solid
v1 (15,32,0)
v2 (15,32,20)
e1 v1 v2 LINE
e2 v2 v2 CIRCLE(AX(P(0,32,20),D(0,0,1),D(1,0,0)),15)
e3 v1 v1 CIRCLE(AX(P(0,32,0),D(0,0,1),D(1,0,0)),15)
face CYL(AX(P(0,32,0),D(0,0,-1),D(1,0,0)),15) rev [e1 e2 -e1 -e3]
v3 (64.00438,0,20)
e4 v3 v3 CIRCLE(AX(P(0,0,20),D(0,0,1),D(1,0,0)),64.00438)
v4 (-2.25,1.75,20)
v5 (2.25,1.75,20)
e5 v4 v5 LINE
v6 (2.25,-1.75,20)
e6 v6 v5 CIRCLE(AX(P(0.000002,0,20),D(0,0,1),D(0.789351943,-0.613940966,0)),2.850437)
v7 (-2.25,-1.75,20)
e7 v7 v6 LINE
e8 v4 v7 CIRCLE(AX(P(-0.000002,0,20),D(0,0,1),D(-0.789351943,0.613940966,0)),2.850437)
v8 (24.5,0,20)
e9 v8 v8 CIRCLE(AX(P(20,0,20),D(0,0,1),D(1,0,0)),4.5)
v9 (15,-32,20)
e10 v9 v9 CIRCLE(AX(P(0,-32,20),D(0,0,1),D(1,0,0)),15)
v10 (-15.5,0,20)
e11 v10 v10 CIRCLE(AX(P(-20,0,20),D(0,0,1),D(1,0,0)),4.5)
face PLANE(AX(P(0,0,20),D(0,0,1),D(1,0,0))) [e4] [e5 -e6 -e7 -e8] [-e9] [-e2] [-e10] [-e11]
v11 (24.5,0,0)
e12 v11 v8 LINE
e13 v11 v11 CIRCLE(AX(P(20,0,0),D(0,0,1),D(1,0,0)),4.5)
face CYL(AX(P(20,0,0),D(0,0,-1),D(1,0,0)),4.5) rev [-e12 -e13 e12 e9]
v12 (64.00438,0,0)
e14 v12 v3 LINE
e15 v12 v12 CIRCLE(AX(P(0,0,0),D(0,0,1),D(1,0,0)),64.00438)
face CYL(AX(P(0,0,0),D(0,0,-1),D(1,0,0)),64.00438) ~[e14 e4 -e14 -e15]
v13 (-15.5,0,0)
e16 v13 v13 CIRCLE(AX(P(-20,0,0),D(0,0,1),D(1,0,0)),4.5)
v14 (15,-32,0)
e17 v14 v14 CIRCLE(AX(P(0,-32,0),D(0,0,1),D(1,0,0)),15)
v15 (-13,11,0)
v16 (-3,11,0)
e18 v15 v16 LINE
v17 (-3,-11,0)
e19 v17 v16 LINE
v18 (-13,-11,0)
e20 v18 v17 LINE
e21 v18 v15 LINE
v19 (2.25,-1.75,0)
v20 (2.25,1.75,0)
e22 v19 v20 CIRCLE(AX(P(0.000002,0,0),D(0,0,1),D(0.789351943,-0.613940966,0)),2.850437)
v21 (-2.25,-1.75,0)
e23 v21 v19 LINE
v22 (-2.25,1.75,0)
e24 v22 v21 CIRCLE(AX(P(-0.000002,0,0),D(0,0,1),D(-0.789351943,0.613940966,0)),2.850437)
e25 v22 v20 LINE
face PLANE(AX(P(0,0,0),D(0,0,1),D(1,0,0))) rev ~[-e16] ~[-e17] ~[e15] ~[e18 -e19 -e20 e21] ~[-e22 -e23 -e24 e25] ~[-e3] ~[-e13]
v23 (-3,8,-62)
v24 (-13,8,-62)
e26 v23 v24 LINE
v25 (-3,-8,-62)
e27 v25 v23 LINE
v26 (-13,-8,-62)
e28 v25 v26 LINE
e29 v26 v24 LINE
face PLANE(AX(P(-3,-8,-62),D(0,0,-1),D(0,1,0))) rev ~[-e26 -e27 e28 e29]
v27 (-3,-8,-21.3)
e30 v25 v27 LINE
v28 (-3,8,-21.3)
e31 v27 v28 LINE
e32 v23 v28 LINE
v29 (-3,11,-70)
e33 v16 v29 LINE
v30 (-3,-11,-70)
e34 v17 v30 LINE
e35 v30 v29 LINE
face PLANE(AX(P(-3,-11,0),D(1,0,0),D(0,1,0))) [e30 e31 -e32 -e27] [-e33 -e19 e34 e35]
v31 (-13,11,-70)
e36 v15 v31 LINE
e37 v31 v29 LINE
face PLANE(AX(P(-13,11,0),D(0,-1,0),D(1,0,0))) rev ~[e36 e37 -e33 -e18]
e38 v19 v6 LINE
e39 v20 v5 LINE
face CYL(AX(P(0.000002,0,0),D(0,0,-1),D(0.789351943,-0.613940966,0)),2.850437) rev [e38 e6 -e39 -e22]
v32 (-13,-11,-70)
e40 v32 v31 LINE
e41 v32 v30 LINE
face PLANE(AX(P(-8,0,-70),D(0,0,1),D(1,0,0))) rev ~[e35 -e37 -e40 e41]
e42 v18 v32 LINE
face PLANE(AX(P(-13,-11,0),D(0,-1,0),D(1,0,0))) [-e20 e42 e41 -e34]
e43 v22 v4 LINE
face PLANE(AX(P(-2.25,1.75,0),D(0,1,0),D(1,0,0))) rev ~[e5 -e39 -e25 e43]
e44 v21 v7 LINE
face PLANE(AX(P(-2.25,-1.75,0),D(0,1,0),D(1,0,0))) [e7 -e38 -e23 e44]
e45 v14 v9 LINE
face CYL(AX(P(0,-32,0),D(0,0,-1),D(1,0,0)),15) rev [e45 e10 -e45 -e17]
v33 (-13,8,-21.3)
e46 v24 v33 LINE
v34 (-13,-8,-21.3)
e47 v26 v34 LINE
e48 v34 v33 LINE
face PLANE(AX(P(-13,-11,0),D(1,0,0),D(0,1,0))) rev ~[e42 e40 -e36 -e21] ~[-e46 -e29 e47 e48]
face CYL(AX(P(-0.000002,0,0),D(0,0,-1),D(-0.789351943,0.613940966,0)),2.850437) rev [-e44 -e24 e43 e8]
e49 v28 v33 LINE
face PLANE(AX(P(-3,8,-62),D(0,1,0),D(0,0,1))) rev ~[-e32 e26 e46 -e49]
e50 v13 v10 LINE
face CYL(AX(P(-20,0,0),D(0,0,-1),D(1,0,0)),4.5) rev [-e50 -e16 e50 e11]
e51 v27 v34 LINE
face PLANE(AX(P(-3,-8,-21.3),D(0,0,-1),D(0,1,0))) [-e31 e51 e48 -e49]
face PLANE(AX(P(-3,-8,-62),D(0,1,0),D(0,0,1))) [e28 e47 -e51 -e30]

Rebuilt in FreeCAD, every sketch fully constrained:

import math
import FreeCAD as App
import Part
import Sketcher
Q = App.Units.Quantity


def add_polygon(sketch, points):
    """Adds a closed chain of lines whose ends are joined by coincident constraints."""
    first, n = sketch.GeometryCount, len(points)
    for a, b in zip(points, points[1:] + points[:1]):
        sketch.addGeometry(Part.LineSegment(App.Vector(*a, 0), App.Vector(*b, 0)), False)
    for i in range(n):
        sketch.addConstraint(Sketcher.Constraint("Coincident", first + i, 2, first + (i + 1) % n, 1))

doc = App.newDocument("Part")
body = doc.addObject("PartDesign::Body", "Body")

# Sketch on XY plane
sketch1 = body.newObject("Sketcher::SketchObject", "Sketch")
sketch1.AttachmentSupport = (doc.getObject("XY_Plane"), [""])
sketch1.MapMode = "FlatFace"
sketch1.addGeometry(Part.Circle(App.Vector(0, 0, 0), App.Vector(0, 0, 1), 64.00438), False)
sketch1.addConstraint(Sketcher.Constraint("Coincident", 0, 3, -1, 1))
sketch1.addConstraint(Sketcher.Constraint("Diameter", 0, Q("128.00876 mm")))
pad1 = body.newObject("PartDesign::Pad", "Pad")
pad1.Profile = sketch1
pad1.Length = 20

# Sketch on XY plane
sketch2 = body.newObject("Sketcher::SketchObject", "Sketch001")
sketch2.AttachmentSupport = (doc.getObject("XY_Plane"), [""])
sketch2.MapMode = "FlatFace"
sketch2.addGeometry(Part.Circle(App.Vector(20, 0, 0), App.Vector(0, 0, 1), 4.5), False)
sketch2.addConstraint(Sketcher.Constraint("PointOnObject", 0, 3, -1))
sketch2.addConstraint(Sketcher.Constraint("Diameter", 0, Q("9 mm")))
sketch2.addConstraint(Sketcher.Constraint("DistanceX", -1, 1, 0, 3, Q("20 mm")))
pocket1 = body.newObject("PartDesign::Pocket", "Pocket")
pocket1.Profile = sketch2
pocket1.Length = 20
pocket1.Reversed = True

# Sketch on XY plane
sketch3 = body.newObject("Sketcher::SketchObject", "Sketch002")
sketch3.AttachmentSupport = (doc.getObject("XY_Plane"), [""])
sketch3.MapMode = "FlatFace"
sketch3.addGeometry(Part.Circle(App.Vector(-20, 0, 0), App.Vector(0, 0, 1), 4.5), False)
sketch3.addConstraint(Sketcher.Constraint("PointOnObject", 0, 3, -1))
sketch3.addConstraint(Sketcher.Constraint("Diameter", 0, Q("9 mm")))
sketch3.addConstraint(Sketcher.Constraint("DistanceX", 0, 3, -1, 1, Q("20 mm")))
pocket2 = body.newObject("PartDesign::Pocket", "Pocket001")
pocket2.Profile = sketch3
pocket2.Length = 20
pocket2.Reversed = True

# Sketch on XY plane
sketch4 = body.newObject("Sketcher::SketchObject", "Sketch003")
sketch4.AttachmentSupport = (doc.getObject("XY_Plane"), [""])
sketch4.MapMode = "FlatFace"
add_polygon(sketch4, [(-13, 11), (-13, -11), (-3, -11), (-3, 11)])  # lines 0-3
sketch4.addConstraint(Sketcher.Constraint("Vertical", 0))
sketch4.addConstraint(Sketcher.Constraint("Horizontal", 1))
sketch4.addConstraint(Sketcher.Constraint("Vertical", 2))
sketch4.addConstraint(Sketcher.Constraint("Horizontal", 3))
sketch4.addConstraint(Sketcher.Constraint("DistanceX", 1, 1, 1, 2, Q("10 mm")))
sketch4.addConstraint(Sketcher.Constraint("DistanceY", 0, 2, 0, 1, Q("22 mm")))
sketch4.addConstraint(Sketcher.Constraint("DistanceX", 0, 2, -1, 1, Q("13 mm")))
sketch4.addConstraint(Sketcher.Constraint("DistanceY", 0, 2, -1, 1, Q("11 mm")))
pad2 = body.newObject("PartDesign::Pad", "Pad001")
pad2.Profile = sketch4
pad2.Length = 70
pad2.Reversed = True

# Sketch on YZ plane
sketch5 = body.newObject("Sketcher::SketchObject", "Sketch004")
sketch5.AttachmentSupport = (doc.getObject("YZ_Plane"), [""])
sketch5.MapMode = "FlatFace"
sketch5.AttachmentOffset = App.Placement(App.Vector(0, 0, -3), App.Rotation())
add_polygon(sketch5, [(-8, -21.3), (-8, -62), (8, -62), (8, -21.3)])  # lines 0-3
sketch5.addConstraint(Sketcher.Constraint("Vertical", 0))
sketch5.addConstraint(Sketcher.Constraint("Horizontal", 1))
sketch5.addConstraint(Sketcher.Constraint("Vertical", 2))
sketch5.addConstraint(Sketcher.Constraint("Horizontal", 3))
sketch5.addConstraint(Sketcher.Constraint("DistanceX", 1, 1, 1, 2, Q("16 mm")))
sketch5.addConstraint(Sketcher.Constraint("DistanceY", 0, 2, 0, 1, Q("40.7 mm")))
sketch5.addConstraint(Sketcher.Constraint("DistanceX", 0, 2, -1, 1, Q("8 mm")))
sketch5.addConstraint(Sketcher.Constraint("DistanceY", 0, 2, -1, 1, Q("62 mm")))
pocket3 = body.newObject("PartDesign::Pocket", "Pocket002")
pocket3.Profile = sketch5
pocket3.Length = 10

# Sketch on XY plane
sketch6 = body.newObject("Sketcher::SketchObject", "Sketch005")
sketch6.AttachmentSupport = (doc.getObject("XY_Plane"), [""])
sketch6.MapMode = "FlatFace"
sketch6.addGeometry(Part.LineSegment(App.Vector(2.25, 1.75, 0), App.Vector(-2.25, 1.75, 0)), False)
sketch6.addGeometry(Part.ArcOfCircle(Part.Circle(App.Vector(-0.000002, 0, 0), App.Vector(0, 0, 1), 2.850437), math.radians(142.124991), math.radians(217.875009)), False)
sketch6.addGeometry(Part.LineSegment(App.Vector(-2.25, -1.75, 0), App.Vector(2.25, -1.75, 0)), False)
sketch6.addGeometry(Part.ArcOfCircle(Part.Circle(App.Vector(0.000002, 0, 0), App.Vector(0, 0, 1), 2.850437), math.radians(-37.875009), math.radians(37.875009)), False)
sketch6.addConstraint(Sketcher.Constraint("Coincident", 0, 2, 1, 1))
sketch6.addConstraint(Sketcher.Constraint("Coincident", 1, 2, 2, 1))
sketch6.addConstraint(Sketcher.Constraint("Coincident", 2, 2, 3, 1))
sketch6.addConstraint(Sketcher.Constraint("Coincident", 3, 2, 0, 1))
sketch6.addConstraint(Sketcher.Constraint("Horizontal", 0))
sketch6.addConstraint(Sketcher.Constraint("Horizontal", 2))
sketch6.addConstraint(Sketcher.Constraint("Coincident", 1, 3, -1, 1))
sketch6.addConstraint(Sketcher.Constraint("Coincident", 3, 3, -1, 1))
sketch6.addConstraint(Sketcher.Constraint("Equal", 1, 3))
sketch6.addConstraint(Sketcher.Constraint("Vertical", 0, 2, 1, 2))
sketch6.addConstraint(Sketcher.Constraint("DistanceX", 0, 2, 0, 1, Q("4.5 mm")))
sketch6.addConstraint(Sketcher.Constraint("DistanceY", 1, 2, 0, 2, Q("3.5 mm")))
pocket4 = body.newObject("PartDesign::Pocket", "Pocket003")
pocket4.Profile = sketch6
pocket4.Length = 20
pocket4.Reversed = True

# Sketch on XY plane
sketch7 = body.newObject("Sketcher::SketchObject", "Sketch006")
sketch7.AttachmentSupport = (doc.getObject("XY_Plane"), [""])
sketch7.MapMode = "FlatFace"
sketch7.addGeometry(Part.Circle(App.Vector(0, 32, 0), App.Vector(0, 0, 1), 15), False)
sketch7.addConstraint(Sketcher.Constraint("PointOnObject", 0, 3, -2))
sketch7.addConstraint(Sketcher.Constraint("Diameter", 0, Q("30 mm")))
sketch7.addConstraint(Sketcher.Constraint("DistanceY", -1, 1, 0, 3, Q("32 mm")))
pocket5 = body.newObject("PartDesign::Pocket", "Pocket004")
pocket5.Profile = sketch7
pocket5.Length = 20
pocket5.Reversed = True

# Sketch on XY plane
sketch8 = body.newObject("Sketcher::SketchObject", "Sketch007")
sketch8.AttachmentSupport = (doc.getObject("XY_Plane"), [""])
sketch8.MapMode = "FlatFace"
sketch8.addGeometry(Part.Circle(App.Vector(0, -32, 0), App.Vector(0, 0, 1), 15), False)
sketch8.addConstraint(Sketcher.Constraint("PointOnObject", 0, 3, -2))
sketch8.addConstraint(Sketcher.Constraint("Diameter", 0, Q("30 mm")))
sketch8.addConstraint(Sketcher.Constraint("DistanceY", 0, 3, -1, 1, Q("32 mm")))
pocket6 = body.newObject("PartDesign::Pocket", "Pocket005")
pocket6.Profile = sketch8
pocket6.Length = 20
pocket6.Reversed = True

doc.recompute()
